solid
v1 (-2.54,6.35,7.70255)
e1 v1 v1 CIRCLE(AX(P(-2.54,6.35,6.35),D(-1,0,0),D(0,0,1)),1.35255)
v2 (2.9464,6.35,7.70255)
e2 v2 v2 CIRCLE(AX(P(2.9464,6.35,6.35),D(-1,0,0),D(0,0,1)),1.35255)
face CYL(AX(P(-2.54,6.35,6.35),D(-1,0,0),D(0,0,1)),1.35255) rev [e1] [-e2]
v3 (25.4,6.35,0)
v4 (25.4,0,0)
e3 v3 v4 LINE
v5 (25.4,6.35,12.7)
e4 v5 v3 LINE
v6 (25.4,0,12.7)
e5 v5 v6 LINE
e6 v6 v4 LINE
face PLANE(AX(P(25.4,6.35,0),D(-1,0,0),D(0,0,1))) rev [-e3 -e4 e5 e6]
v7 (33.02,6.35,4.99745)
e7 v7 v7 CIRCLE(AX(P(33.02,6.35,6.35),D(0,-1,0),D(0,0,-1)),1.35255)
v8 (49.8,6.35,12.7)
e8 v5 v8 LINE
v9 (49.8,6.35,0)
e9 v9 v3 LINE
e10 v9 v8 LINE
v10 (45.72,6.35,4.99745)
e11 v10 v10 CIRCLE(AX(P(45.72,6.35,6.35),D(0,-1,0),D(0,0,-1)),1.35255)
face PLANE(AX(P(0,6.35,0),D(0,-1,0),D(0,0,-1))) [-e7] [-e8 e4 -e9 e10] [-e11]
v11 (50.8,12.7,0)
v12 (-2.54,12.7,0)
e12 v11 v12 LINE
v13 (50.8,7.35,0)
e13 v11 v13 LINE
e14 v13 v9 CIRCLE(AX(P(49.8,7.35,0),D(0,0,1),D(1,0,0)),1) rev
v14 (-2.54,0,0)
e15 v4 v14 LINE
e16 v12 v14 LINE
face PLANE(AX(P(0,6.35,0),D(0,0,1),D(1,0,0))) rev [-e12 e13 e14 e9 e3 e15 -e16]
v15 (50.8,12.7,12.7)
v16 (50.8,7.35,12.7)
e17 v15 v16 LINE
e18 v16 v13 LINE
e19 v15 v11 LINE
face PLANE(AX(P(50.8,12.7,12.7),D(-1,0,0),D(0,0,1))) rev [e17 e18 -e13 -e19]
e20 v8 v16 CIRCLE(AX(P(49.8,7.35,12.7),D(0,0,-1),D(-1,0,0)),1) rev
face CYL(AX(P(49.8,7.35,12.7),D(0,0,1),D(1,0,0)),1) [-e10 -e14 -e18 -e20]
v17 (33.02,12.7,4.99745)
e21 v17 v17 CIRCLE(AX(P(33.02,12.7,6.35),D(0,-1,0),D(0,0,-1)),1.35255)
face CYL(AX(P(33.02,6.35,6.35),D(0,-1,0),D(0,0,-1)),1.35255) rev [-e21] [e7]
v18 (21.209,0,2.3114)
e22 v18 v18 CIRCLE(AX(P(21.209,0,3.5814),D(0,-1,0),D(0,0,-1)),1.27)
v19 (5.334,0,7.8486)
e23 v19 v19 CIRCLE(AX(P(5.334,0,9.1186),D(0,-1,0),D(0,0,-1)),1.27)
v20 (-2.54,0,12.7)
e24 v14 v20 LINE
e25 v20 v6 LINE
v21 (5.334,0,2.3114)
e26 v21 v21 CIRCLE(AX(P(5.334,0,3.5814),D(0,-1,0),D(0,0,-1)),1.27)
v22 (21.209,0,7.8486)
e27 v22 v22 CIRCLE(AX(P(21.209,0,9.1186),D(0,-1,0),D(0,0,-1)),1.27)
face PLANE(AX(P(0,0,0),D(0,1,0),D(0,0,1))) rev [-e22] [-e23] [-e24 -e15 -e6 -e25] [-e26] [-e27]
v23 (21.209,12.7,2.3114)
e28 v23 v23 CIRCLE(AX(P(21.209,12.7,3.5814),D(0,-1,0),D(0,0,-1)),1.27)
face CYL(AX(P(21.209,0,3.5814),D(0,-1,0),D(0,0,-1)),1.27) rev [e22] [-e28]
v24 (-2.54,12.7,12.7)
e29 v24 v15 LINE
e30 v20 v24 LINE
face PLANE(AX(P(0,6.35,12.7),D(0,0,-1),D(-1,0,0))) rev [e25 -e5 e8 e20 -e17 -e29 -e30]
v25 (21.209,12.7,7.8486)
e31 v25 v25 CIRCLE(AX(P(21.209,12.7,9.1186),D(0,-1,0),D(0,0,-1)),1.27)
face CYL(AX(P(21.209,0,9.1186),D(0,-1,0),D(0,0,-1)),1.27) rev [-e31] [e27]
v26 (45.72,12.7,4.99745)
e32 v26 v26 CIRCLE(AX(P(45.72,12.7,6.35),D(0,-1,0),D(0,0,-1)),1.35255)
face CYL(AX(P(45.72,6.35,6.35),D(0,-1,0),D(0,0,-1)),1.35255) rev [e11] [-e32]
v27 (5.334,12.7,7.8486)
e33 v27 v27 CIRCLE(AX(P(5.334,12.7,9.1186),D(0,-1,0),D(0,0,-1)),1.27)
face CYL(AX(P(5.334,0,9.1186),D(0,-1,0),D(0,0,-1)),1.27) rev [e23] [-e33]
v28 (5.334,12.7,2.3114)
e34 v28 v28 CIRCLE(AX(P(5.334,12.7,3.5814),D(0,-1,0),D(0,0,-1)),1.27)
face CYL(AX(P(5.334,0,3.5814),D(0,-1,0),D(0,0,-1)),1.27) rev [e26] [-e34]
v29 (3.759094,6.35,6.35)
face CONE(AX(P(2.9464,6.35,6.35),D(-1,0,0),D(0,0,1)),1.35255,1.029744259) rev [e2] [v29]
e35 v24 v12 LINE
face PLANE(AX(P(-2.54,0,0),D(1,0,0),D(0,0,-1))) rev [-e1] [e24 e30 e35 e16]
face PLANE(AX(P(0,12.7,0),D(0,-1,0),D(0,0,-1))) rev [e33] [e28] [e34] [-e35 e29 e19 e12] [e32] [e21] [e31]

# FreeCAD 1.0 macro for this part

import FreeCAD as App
import Part
import Sketcher

V = App.Vector
Q = App.Units.Quantity


def edges_at(feature, points):
    """Names of the edges that pass closest to the given points."""
    edges = feature.Shape.Edges
    near = lambda p: min(range(len(edges)), key=lambda i: edges[i].distToShape(Part.Vertex(*p))[0])
    return sorted({f"Edge{near(p) + 1}" for p in points})

doc = App.newDocument("Part")
body = doc.addObject("PartDesign::Body", "Body")

sketch1 = body.newObject("Sketcher::SketchObject", "Sketch")
sketch1.AttachmentSupport = (doc.getObject("XZ_Plane"), [""])
sketch1.MapMode = "FlatFace"
sketch1.addGeometry([
    Part.LineSegment(V(0, 0, 0), V(0, 13, 0)),
    Part.LineSegment(V(0, 13, 0), V(25, 13, 0)),
    Part.LineSegment(V(25, 13, 0), V(25, 0, 0)),
    Part.LineSegment(V(25, 0, 0), V(0, 0, 0)),
], False)
sketch1.addConstraint([
    Sketcher.Constraint("Coincident", 0, 2, 1, 1),
    Sketcher.Constraint("Coincident", 1, 2, 2, 1),
    Sketcher.Constraint("Coincident", 2, 2, 3, 1),
    Sketcher.Constraint("Coincident", 3, 2, 0, 1),
    Sketcher.Constraint("Vertical", 0),
    Sketcher.Constraint("Horizontal", 1),
    Sketcher.Constraint("Vertical", 2),
    Sketcher.Constraint("Horizontal", 3),
    Sketcher.Constraint("Coincident", 3, 2, -1, 1),
    Sketcher.Constraint("DistanceX", 1, 1, 1, 2, Q("1 in")),
    Sketcher.Constraint("DistanceY", 0, 1, 0, 2, Q("0.5 in")),
])
pad1 = body.newObject("PartDesign::Pad", "Pad")
pad1.Profile = sketch1
pad1.Length = Q("0.25 in")
pad1.Reversed = True

sketch2 = body.newObject("Sketcher::SketchObject", "Sketch001")
sketch2.AttachmentSupport = (doc.getObject("XZ_Plane"), [""])
sketch2.MapMode = "FlatFace"
sketch2.addGeometry([
    Part.Circle(V(5.3, 9.1, 0), V(0, 0, 1), 0.5),
    Part.Circle(V(5.3, 3.6, 0), V(0, 0, 1), 0.5),
    Part.Circle(V(21.2, 3.6, 0), V(0, 0, 1), 0.5),
    Part.Circle(V(21.2, 9.1, 0), V(0, 0, 1), 0.5),
], False)
sketch2.addConstraint([
    Sketcher.Constraint("Equal", 0, 1),
    Sketcher.Constraint("Equal", 1, 2),
    Sketcher.Constraint("Equal", 2, 3),
    Sketcher.Constraint("Horizontal", 1, 3, 2, 3),
    Sketcher.Constraint("Horizontal", 0, 3, 3, 3),
    Sketcher.Constraint("Vertical", 0, 3, 1, 3),
    Sketcher.Constraint("Vertical", 2, 3, 3, 3),
    Sketcher.Constraint("Diameter", 0, Q("0.043 in")),
    Sketcher.Constraint("DistanceX", -1, 1, 0, 3, Q("0.21 in")),
    Sketcher.Constraint("DistanceY", -1, 1, 0, 3, Q("0.359 in")),
    Sketcher.Constraint("DistanceY", -1, 1, 1, 3, Q("0.141 in")),
    Sketcher.Constraint("DistanceX", -1, 1, 2, 3, Q("0.835 in")),
])
pocket1 = body.newObject("PartDesign::Pocket", "Pocket")
pocket1.Profile = sketch2
pocket1.Type = "ThroughAll"

sketch3 = body.newObject("Sketcher::SketchObject", "Sketch002")
sketch3.AttachmentSupport = (doc.getObject("XZ_Plane"), [""])
sketch3.MapMode = "FlatFace"
sketch3.AttachmentOffset = App.Placement(V(0, 0, -0.25 * 25.4), App.Rotation())
sketch3.addGeometry([
    Part.LineSegment(V(0, 0, 0), V(0, 13, 0)),
    Part.LineSegment(V(0, 13, 0), V(51, 13, 0)),
    Part.LineSegment(V(51, 13, 0), V(51, 0, 0)),
    Part.LineSegment(V(51, 0, 0), V(0, 0, 0)),
], False)
sketch3.addConstraint([
    Sketcher.Constraint("Coincident", 0, 2, 1, 1),
    Sketcher.Constraint("Coincident", 1, 2, 2, 1),
    Sketcher.Constraint("Coincident", 2, 2, 3, 1),
    Sketcher.Constraint("Coincident", 3, 2, 0, 1),
    Sketcher.Constraint("Vertical", 0),
    Sketcher.Constraint("Horizontal", 1),
    Sketcher.Constraint("Vertical", 2),
    Sketcher.Constraint("Horizontal", 3),
    Sketcher.Constraint("Coincident", 3, 2, -1, 1),
    Sketcher.Constraint("DistanceX", 1, 1, 1, 2, Q("2 in")),
    Sketcher.Constraint("DistanceY", 0, 1, 0, 2, Q("0.5 in")),
])
pad2 = body.newObject("PartDesign::Pad", "Pad001")
pad2.Profile = sketch3
pad2.Length = Q("0.25 in")
pad2.Reversed = True

sketch4 = body.newObject("Sketcher::SketchObject", "Sketch003")
sketch4.AttachmentSupport = (doc.getObject("XZ_Plane"), [""])
sketch4.MapMode = "FlatFace"
sketch4.addGeometry([
    Part.Circle(V(5.3, 3.6, 0), V(0, 0, 1), 1.3),
    Part.Circle(V(21.2, 3.6, 0), V(0, 0, 1), 1.3),
    Part.Circle(V(21.2, 9.1, 0), V(0, 0, 1), 1.3),
    Part.Circle(V(5.3, 9.1, 0), V(0, 0, 1), 1.3),
], False)
sketch4.addConstraint([
    Sketcher.Constraint("Equal", 0, 1),
    Sketcher.Constraint("Equal", 1, 2),
    Sketcher.Constraint("Equal", 2, 3),
    Sketcher.Constraint("Horizontal", 0, 3, 1, 3),
    Sketcher.Constraint("Horizontal", 2, 3, 3, 3),
    Sketcher.Constraint("Vertical", 1, 3, 2, 3),
    Sketcher.Constraint("Vertical", 0, 3, 3, 3),
    Sketcher.Constraint("Diameter", 0, Q("0.1 in")),
    Sketcher.Constraint("DistanceX", -1, 1, 0, 3, Q("0.21 in")),
    Sketcher.Constraint("DistanceY", -1, 1, 0, 3, Q("0.141 in")),
    Sketcher.Constraint("DistanceX", -1, 1, 1, 3, Q("0.835 in")),
    Sketcher.Constraint("DistanceY", -1, 1, 2, 3, Q("0.359 in")),
])
doc.recompute()
hole = body.newObject("PartDesign::Hole", "Hole")
hole.Profile = sketch4
hole.ThreadType = "None"
hole.Diameter = Q("0.1 in")
hole.DepthType = "ThroughAll"

sketch5 = body.newObject("Sketcher::SketchObject", "Sketch004")
sketch5.AttachmentSupport = (doc.getObject("XZ_Plane"), [""])
sketch5.MapMode = "FlatFace"
sketch5.AttachmentOffset = App.Placement(V(0, 0, -0.25 * 25.4), App.Rotation())
sketch5.addGeometry([
    Part.Circle(V(33, 6.3, 0), V(0, 0, 1), 1.4),
    Part.Circle(V(45.7, 6.3, 0), V(0, 0, 1), 1.4),
], False)
sketch5.addConstraint([
    Sketcher.Constraint("Equal", 0, 1),
    Sketcher.Constraint("Horizontal", 0, 3, 1, 3),
    Sketcher.Constraint("Diameter", 0, Q("0.1065 in")),
    Sketcher.Constraint("DistanceX", -1, 1, 0, 3, Q("1.3 in")),
    Sketcher.Constraint("DistanceX", -1, 1, 1, 3, Q("1.8 in")),
    Sketcher.Constraint("DistanceY", -1, 1, 0, 3, Q("0.25 in")),
])
doc.recompute()
hole2 = body.newObject("PartDesign::Hole", "Hole001")
hole2.Profile = sketch5
hole2.ThreadType = "None"
hole2.Diameter = Q("0.1065 in")
hole2.DepthType = "ThroughAll"
doc.recompute()

fillet = body.newObject("PartDesign::Fillet", "Fillet")
fillet.Base = (hole2, edges_at(hole2, [(50.8, 6.35, 6.35)]))
fillet.Radius = 1

sketch6 = body.newObject("Sketcher::SketchObject", "Sketch005")
sketch6.AttachmentSupport = (doc.getObject("YZ_Plane"), [""])
sketch6.MapMode = "FlatFace"
sketch6.addGeometry([
    Part.LineSegment(V(13, 0, 0), V(0, 0, 0)),
    Part.LineSegment(V(0, 0, 0), V(0, 13, 0)),
    Part.LineSegment(V(0, 13, 0), V(13, 13, 0)),
    Part.LineSegment(V(13, 13, 0), V(13, 0, 0)),
], False)
sketch6.addConstraint([
    Sketcher.Constraint("Coincident", 0, 2, 1, 1),
    Sketcher.Constraint("Coincident", 1, 2, 2, 1),
    Sketcher.Constraint("Coincident", 2, 2, 3, 1),
    Sketcher.Constraint("Coincident", 3, 2, 0, 1),
    Sketcher.Constraint("Horizontal", 0),
    Sketcher.Constraint("Vertical", 1),
    Sketcher.Constraint("Horizontal", 2),
    Sketcher.Constraint("Vertical", 3),
    Sketcher.Constraint("Coincident", 0, 2, -1, 1),
    Sketcher.Constraint("Equal", 2, 1),
    Sketcher.Constraint("DistanceX", 0, 2, 0, 1, Q("0.5 in")),
])
pad3 = body.newObject("PartDesign::Pad", "Pad002")
pad3.Profile = sketch6
pad3.Length = Q("0.1 in")
pad3.Reversed = True

sketch7 = body.newObject("Sketcher::SketchObject", "Sketch006")
sketch7.AttachmentSupport = (doc.getObject("YZ_Plane"), [""])
sketch7.MapMode = "FlatFace"
sketch7.AttachmentOffset = App.Placement(V(0, 0, -0.1 * 25.4), App.Rotation())
sketch7.addGeometry(Part.Circle(V(6.3, 6.3, 0), V(0, 0, 1), 1.4), False)
sketch7.addConstraint([
    Sketcher.Constraint("Diameter", 0, Q("0.1065 in")),
    Sketcher.Constraint("DistanceX", -1, 1, 0, 3, Q("0.25 in")),
    Sketcher.Constraint("DistanceY", -1, 1, 0, 3, Q("0.25 in")),
])
doc.recompute()
hole3 = body.newObject("PartDesign::Hole", "Hole002")
hole3.Profile = sketch7
hole3.ThreadType = "None"
hole3.Diameter = Q("0.1065 in")
hole3.DepthType = "Dimension"
hole3.Depth = Q("0.216 in")
hole3.DrillPoint = "Angled"
hole3.DrillPointAngle = 118
hole3.Reversed = True

doc.recompute()
